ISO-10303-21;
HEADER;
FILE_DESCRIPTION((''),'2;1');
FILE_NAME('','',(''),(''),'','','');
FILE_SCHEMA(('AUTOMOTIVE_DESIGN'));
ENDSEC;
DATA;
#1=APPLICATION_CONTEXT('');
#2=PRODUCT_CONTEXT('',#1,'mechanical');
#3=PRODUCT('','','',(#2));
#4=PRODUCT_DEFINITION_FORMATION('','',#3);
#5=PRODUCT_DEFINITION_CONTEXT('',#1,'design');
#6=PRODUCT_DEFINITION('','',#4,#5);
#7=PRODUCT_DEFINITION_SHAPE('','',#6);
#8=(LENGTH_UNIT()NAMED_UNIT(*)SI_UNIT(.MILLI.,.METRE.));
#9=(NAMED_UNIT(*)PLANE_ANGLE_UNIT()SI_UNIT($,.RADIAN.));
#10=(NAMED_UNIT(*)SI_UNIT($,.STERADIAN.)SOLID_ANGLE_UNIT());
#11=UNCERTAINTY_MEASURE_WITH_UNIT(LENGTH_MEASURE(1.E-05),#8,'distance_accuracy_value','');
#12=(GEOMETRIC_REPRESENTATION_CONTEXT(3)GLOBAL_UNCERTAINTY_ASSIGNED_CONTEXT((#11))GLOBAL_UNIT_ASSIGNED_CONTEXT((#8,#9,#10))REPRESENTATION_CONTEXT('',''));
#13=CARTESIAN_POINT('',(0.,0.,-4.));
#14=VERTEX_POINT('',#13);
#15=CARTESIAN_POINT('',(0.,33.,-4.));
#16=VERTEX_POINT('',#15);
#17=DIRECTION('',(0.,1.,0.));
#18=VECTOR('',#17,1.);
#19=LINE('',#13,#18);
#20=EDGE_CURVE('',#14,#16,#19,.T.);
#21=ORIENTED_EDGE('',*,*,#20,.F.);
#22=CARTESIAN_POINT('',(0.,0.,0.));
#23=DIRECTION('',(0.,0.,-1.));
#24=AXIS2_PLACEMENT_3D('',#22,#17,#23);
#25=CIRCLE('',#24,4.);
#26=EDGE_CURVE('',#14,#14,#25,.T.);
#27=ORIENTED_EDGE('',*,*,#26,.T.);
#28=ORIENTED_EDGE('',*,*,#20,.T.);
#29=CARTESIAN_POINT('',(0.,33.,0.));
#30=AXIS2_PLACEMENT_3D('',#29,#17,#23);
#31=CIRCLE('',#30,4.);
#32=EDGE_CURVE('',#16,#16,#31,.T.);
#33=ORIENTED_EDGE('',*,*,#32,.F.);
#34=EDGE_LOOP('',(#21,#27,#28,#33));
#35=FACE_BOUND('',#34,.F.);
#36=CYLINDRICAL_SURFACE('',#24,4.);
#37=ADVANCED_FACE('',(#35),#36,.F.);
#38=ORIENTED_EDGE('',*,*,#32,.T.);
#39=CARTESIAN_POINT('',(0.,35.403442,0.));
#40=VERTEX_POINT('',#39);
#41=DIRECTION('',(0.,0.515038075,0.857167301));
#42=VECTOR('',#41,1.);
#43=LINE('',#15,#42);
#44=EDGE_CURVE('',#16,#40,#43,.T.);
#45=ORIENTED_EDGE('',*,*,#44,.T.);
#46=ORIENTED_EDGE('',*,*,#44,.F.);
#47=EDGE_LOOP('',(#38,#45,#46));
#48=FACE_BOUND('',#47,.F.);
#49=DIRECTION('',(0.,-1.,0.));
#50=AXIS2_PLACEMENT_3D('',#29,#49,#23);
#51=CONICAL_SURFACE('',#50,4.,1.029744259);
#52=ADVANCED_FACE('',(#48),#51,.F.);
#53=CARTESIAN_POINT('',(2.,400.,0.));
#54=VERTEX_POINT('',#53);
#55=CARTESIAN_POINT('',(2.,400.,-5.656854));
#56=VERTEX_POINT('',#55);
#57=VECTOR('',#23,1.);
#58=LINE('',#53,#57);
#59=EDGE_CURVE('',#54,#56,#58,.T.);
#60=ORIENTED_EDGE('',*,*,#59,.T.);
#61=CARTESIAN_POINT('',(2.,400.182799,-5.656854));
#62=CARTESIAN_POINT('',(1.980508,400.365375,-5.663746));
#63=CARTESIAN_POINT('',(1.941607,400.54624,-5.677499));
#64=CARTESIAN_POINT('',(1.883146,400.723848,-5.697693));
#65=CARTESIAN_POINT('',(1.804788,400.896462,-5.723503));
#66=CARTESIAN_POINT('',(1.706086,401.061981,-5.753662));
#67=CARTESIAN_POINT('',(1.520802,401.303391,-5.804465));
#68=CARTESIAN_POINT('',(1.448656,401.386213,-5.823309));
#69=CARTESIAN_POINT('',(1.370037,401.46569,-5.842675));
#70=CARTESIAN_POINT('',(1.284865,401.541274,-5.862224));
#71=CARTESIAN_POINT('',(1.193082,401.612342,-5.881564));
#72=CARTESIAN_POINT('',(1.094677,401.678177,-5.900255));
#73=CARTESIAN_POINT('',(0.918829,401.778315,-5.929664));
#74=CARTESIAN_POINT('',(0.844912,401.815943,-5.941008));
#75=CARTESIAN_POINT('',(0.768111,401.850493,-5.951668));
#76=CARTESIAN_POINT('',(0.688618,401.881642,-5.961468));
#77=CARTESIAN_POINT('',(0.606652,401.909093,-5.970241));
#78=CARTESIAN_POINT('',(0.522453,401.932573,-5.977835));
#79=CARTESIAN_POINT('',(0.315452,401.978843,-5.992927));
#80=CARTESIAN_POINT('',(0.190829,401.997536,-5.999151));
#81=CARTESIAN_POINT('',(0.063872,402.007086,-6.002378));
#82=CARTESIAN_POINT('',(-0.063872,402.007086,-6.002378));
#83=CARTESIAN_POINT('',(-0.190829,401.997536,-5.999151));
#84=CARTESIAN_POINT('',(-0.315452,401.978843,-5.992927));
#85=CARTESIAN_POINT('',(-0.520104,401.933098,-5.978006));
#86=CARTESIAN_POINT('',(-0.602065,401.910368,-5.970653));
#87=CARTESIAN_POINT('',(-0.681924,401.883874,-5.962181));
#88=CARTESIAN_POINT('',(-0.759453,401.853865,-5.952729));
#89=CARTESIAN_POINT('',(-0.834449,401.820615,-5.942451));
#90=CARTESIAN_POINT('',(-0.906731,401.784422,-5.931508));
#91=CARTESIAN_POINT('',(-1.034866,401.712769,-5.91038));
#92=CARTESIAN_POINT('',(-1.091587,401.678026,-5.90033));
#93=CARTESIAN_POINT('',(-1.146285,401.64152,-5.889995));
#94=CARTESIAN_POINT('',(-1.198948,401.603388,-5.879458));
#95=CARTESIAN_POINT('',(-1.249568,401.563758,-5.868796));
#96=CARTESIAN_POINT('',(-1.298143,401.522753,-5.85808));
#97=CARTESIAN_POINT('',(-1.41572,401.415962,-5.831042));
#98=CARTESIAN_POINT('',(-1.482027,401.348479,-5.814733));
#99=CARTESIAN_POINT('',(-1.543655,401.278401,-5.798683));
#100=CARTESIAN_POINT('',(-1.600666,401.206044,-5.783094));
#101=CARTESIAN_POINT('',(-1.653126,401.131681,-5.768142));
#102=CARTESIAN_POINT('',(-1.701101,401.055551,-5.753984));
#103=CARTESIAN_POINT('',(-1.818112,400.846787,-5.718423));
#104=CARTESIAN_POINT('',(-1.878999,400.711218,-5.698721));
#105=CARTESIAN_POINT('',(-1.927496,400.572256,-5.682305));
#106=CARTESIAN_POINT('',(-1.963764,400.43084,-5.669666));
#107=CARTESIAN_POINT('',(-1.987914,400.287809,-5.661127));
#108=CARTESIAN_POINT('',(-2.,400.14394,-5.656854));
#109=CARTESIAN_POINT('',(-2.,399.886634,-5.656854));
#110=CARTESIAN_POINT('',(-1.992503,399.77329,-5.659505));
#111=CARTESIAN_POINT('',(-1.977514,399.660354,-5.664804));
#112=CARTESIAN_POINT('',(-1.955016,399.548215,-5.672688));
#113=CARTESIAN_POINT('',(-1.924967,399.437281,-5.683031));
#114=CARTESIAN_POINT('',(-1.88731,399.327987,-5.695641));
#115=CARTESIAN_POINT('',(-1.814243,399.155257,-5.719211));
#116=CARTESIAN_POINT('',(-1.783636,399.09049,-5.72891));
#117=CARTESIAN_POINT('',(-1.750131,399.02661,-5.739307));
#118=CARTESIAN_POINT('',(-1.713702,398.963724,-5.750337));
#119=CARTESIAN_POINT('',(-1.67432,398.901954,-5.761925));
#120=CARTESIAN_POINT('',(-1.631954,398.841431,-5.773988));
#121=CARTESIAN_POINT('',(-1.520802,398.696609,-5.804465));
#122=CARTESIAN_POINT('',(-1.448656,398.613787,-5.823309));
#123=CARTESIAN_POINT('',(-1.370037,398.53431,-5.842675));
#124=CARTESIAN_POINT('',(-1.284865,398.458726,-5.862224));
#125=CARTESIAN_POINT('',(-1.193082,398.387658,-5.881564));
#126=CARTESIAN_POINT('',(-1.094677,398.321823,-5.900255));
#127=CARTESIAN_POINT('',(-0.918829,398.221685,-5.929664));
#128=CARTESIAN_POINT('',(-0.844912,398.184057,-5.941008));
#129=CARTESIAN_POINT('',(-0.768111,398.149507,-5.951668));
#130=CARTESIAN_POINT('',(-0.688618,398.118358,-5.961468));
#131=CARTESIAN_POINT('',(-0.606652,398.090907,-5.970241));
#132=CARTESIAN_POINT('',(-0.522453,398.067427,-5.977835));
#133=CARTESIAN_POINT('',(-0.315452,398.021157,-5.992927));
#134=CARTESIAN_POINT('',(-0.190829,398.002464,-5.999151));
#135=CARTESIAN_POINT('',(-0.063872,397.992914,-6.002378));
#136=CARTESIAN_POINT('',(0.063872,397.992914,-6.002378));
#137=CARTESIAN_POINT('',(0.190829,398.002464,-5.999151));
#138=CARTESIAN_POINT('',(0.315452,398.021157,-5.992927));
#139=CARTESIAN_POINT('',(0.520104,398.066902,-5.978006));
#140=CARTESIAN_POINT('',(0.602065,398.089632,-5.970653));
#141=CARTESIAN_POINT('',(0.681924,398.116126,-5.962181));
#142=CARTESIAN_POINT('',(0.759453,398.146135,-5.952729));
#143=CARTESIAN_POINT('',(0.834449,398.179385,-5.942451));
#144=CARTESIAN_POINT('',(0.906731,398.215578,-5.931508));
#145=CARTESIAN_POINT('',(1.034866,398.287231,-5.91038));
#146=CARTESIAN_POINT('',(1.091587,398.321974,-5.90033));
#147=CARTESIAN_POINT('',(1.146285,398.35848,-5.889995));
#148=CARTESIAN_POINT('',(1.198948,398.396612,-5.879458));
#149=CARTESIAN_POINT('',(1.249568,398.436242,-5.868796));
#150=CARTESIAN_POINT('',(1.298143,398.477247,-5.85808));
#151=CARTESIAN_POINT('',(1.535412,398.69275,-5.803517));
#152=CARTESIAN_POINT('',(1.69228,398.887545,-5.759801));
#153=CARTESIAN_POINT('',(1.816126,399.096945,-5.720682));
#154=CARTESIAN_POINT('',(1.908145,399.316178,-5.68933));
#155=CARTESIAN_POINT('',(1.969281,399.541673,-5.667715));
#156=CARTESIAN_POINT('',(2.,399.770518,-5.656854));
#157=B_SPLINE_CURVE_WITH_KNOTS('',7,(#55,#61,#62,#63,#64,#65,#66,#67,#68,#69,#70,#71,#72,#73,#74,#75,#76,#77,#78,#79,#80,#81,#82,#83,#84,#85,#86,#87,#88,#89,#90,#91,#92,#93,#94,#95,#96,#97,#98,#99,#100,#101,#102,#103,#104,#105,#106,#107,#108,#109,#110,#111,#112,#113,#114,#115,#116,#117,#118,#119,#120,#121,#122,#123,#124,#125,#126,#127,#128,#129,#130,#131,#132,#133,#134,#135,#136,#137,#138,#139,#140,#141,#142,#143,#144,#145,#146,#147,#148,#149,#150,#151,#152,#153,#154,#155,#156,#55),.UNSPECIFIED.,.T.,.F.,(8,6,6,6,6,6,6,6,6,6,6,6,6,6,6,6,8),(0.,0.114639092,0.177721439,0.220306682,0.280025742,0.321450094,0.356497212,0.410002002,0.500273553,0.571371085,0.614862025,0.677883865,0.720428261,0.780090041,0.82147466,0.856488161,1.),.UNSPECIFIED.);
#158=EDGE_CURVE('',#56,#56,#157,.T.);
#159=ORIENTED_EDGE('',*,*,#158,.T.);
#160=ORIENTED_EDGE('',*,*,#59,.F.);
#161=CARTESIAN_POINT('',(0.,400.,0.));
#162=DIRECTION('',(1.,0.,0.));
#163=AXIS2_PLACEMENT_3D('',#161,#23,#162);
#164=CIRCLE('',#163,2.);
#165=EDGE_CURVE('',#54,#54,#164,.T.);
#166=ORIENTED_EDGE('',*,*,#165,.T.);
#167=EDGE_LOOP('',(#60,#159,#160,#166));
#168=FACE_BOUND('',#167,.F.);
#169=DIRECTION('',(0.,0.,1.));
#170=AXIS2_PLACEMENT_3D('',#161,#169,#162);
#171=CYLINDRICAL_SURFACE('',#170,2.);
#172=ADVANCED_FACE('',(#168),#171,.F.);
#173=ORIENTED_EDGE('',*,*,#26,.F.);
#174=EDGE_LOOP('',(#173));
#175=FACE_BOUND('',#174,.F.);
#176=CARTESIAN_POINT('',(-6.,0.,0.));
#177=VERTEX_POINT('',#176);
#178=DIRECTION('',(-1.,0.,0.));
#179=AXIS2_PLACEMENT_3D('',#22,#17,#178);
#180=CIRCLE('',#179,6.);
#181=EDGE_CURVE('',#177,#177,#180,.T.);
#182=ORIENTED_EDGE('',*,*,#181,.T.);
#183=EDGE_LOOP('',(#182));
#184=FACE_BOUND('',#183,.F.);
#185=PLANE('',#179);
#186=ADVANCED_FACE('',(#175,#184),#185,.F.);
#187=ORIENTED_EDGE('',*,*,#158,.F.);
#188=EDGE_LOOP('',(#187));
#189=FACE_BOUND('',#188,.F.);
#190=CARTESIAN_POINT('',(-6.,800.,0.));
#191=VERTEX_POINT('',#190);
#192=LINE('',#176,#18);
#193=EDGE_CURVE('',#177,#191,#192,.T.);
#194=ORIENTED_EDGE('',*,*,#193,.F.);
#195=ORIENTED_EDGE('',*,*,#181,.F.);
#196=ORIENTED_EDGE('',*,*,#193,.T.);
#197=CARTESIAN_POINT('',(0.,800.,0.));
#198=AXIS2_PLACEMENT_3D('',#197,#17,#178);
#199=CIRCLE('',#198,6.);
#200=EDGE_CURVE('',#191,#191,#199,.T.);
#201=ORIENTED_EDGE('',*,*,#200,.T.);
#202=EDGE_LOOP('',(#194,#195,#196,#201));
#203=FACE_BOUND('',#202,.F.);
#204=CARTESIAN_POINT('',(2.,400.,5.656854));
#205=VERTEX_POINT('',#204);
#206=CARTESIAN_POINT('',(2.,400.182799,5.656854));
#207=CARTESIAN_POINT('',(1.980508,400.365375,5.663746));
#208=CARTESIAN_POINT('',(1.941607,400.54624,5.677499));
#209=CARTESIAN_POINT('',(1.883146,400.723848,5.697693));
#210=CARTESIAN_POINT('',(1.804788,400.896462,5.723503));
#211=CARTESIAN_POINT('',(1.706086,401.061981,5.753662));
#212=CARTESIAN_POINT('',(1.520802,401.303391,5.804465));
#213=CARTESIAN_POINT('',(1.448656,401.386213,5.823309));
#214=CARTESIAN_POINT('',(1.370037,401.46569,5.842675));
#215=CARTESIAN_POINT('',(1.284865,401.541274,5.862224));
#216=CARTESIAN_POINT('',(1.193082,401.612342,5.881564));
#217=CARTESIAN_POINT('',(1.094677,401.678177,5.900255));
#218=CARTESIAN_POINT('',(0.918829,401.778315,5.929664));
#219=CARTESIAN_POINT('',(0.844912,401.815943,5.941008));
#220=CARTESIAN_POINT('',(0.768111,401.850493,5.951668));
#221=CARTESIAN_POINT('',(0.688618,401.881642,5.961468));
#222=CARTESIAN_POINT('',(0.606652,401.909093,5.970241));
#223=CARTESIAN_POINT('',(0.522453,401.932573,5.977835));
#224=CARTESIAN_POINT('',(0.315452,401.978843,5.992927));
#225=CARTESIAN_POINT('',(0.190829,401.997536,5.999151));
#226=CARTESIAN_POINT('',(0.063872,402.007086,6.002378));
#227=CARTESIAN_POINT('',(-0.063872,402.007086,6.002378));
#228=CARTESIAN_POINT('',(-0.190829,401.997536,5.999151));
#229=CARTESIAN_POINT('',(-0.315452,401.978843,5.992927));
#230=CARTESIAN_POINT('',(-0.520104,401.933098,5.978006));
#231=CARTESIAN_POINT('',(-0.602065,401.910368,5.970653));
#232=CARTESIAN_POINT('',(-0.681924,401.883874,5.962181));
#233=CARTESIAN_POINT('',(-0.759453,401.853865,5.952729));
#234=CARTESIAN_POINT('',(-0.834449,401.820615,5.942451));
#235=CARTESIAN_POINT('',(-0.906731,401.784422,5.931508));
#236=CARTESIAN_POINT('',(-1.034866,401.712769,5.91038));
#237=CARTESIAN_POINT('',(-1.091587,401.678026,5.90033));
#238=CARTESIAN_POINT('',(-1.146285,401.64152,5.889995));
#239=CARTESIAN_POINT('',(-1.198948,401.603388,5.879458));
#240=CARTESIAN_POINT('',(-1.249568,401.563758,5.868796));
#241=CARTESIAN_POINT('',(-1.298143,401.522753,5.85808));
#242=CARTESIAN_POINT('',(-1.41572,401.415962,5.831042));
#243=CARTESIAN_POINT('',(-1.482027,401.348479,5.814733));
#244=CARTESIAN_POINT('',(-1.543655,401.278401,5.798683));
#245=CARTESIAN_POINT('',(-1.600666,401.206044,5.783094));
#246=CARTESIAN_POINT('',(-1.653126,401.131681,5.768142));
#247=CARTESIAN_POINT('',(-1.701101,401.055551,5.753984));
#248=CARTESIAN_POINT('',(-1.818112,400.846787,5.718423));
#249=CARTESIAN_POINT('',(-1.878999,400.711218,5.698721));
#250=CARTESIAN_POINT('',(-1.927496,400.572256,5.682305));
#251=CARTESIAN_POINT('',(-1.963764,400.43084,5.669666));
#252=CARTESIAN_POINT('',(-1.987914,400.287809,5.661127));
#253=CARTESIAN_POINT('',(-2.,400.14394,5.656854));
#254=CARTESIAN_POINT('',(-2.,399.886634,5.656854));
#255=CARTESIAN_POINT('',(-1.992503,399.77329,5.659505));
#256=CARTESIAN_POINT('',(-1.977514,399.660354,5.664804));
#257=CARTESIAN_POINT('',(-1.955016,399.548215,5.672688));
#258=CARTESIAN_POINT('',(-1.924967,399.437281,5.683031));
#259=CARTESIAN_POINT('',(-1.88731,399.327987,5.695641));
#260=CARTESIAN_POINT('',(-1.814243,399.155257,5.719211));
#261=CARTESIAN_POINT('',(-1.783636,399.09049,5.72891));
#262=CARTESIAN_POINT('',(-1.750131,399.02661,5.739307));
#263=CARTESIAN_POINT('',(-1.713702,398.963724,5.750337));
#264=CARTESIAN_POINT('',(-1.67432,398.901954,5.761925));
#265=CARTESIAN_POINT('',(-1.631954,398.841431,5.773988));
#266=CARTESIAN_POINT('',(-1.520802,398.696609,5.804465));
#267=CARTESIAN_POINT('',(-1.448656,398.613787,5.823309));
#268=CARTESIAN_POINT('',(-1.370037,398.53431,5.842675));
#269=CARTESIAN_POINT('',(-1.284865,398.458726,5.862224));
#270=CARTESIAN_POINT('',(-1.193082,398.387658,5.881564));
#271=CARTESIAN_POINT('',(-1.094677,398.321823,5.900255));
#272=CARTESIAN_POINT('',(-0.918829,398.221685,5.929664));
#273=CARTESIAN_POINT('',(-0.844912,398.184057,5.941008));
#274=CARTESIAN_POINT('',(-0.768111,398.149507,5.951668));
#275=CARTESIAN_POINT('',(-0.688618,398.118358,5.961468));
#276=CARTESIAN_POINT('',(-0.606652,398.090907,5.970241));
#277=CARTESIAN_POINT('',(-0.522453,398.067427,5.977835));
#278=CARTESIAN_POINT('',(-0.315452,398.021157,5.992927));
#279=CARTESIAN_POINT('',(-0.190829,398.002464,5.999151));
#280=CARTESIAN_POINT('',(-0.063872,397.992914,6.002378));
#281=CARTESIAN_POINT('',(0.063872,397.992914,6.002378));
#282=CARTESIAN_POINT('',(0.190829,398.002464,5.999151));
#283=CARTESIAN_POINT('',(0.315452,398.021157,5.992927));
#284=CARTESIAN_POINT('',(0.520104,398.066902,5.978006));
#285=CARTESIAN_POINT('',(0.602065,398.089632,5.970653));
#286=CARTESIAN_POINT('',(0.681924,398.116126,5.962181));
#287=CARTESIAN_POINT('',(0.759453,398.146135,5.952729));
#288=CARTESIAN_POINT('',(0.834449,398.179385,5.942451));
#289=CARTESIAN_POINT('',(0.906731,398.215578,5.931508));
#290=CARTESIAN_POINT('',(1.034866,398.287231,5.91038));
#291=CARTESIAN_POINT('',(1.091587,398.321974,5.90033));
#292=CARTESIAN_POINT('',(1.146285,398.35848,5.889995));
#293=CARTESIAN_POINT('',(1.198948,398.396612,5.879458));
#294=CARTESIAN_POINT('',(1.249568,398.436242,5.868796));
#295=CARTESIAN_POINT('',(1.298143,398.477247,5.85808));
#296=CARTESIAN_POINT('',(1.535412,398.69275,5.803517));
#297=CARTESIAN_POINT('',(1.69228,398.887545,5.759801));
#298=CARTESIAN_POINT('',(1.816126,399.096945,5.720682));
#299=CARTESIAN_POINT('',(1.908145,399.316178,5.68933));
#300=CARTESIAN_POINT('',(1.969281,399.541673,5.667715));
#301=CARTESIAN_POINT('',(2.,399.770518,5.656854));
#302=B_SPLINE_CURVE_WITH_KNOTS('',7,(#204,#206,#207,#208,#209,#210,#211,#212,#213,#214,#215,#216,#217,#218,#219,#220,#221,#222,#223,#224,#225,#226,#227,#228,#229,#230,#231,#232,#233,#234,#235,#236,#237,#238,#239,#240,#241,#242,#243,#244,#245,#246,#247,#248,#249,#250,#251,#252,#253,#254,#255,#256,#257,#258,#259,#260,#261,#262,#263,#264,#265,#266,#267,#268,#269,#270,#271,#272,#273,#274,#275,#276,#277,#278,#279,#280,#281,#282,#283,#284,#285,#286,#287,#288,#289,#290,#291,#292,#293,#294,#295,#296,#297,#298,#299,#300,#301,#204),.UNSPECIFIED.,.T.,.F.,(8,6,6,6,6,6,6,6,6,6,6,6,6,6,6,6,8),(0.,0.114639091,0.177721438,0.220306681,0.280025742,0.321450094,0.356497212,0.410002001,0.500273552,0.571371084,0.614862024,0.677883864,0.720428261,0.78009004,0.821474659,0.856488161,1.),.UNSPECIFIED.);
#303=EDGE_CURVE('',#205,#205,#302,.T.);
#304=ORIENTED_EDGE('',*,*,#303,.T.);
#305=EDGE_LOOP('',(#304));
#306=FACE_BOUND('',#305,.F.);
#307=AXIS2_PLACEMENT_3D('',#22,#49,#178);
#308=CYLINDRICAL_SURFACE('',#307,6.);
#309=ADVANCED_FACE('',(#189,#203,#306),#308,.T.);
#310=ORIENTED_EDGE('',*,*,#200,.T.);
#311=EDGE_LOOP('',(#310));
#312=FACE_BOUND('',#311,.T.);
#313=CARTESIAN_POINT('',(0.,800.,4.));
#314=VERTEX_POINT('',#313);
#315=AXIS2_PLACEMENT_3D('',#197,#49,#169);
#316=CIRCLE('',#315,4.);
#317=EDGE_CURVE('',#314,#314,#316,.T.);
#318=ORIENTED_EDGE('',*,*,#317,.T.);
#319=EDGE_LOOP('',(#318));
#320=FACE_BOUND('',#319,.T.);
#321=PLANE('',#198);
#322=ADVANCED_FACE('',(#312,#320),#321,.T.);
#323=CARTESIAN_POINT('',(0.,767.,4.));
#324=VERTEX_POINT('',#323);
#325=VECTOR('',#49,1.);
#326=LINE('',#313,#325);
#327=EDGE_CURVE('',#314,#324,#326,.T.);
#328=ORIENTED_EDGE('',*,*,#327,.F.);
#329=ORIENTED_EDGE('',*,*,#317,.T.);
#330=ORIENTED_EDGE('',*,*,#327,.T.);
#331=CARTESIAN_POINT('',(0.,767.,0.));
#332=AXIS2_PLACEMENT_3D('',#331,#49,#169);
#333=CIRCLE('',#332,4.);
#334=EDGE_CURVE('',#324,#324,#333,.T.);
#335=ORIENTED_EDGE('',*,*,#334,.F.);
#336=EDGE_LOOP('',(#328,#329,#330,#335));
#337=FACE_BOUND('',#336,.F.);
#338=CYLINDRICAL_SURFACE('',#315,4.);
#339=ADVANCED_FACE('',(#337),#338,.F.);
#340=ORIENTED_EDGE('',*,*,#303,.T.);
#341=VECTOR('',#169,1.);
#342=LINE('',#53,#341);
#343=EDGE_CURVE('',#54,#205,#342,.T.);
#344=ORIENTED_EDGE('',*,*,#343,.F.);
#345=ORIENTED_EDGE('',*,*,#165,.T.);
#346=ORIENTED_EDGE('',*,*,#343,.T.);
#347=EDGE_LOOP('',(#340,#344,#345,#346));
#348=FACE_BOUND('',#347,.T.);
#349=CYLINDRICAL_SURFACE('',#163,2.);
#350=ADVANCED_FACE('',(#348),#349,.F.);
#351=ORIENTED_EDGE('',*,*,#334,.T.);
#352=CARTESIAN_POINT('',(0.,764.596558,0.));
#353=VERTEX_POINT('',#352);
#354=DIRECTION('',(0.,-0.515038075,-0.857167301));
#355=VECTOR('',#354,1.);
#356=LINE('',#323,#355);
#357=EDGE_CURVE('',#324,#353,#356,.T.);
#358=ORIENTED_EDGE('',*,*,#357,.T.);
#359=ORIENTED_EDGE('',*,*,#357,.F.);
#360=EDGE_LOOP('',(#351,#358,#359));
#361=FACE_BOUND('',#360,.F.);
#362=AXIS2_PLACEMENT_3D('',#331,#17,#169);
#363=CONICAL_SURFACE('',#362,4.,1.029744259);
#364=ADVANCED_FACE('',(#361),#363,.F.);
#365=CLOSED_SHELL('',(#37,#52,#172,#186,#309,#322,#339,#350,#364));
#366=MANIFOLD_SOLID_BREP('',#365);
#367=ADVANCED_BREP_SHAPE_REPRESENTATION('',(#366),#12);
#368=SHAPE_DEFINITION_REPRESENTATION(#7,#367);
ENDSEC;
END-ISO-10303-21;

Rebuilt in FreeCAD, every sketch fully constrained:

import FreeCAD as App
import Part
import Sketcher
from FreeCAD import Vector
Q = App.Units.Quantity

doc = App.newDocument("Part")
body = doc.addObject("PartDesign::Body", "Body")

# Sketch on XZ plane
sketch1 = body.newObject("Sketcher::SketchObject", "Sketch")
sketch1.AttachmentSupport = (doc.getObject("XZ_Plane"), [""])
sketch1.MapMode = "FlatFace"
sketch1.addGeometry(Part.Circle(Vector(0, 0, 0), Vector(0, 0, 1), 6), False)
sketch1.addConstraint([
    Sketcher.Constraint("Coincident", 0, 3, -1, 1),
    Sketcher.Constraint("Diameter", 0, Q("12 mm")),
])
pad1 = body.newObject("PartDesign::Pad", "Pad")
pad1.Profile = sketch1
pad1.Length = 800
pad1.Reversed = True

# Sketch on XZ plane
sketch2 = body.newObject("Sketcher::SketchObject", "Sketch001")
sketch2.AttachmentSupport = (doc.getObject("XZ_Plane"), [""])
sketch2.MapMode = "FlatFace"
sketch2.AttachmentOffset = App.Placement(Vector(0, 0, -800), App.Rotation())
sketch2.addGeometry(Part.Circle(Vector(0, 0, 0), Vector(0, 0, 1), 4), False)
sketch2.addConstraint([
    Sketcher.Constraint("Coincident", 0, 3, -1, 1),
    Sketcher.Constraint("Diameter", 0, Q("8 mm")),
])
doc.recompute()
hole = body.newObject("PartDesign::Hole", "Hole")
hole.Profile = sketch2
hole.ThreadType = "None"
hole.Diameter = 8
hole.DepthType = "Dimension"
hole.Depth = 33
hole.DrillPoint = "Angled"
hole.DrillPointAngle = 118
hole.Reversed = True

# Sketch on XZ plane
sketch3 = body.newObject("Sketcher::SketchObject", "Sketch002")
sketch3.AttachmentSupport = (doc.getObject("XZ_Plane"), [""])
sketch3.MapMode = "FlatFace"
sketch3.addGeometry(Part.Circle(Vector(0, 0, 0), Vector(0, 0, 1), 4), False)
sketch3.addConstraint([
    Sketcher.Constraint("Coincident", 0, 3, -1, 1),
    Sketcher.Constraint("Diameter", 0, Q("8 mm")),
])
doc.recompute()
hole2 = body.newObject("PartDesign::Hole", "Hole001")
hole2.Profile = sketch3
hole2.ThreadType = "None"
hole2.Diameter = 8
hole2.DepthType = "Dimension"
hole2.Depth = 33
hole2.DrillPoint = "Angled"
hole2.DrillPointAngle = 118

# Sketch on XY plane
sketch4 = body.newObject("Sketcher::SketchObject", "Sketch003")
sketch4.AttachmentSupport = (doc.getObject("XY_Plane"), [""])
sketch4.MapMode = "FlatFace"
sketch4.addGeometry(Part.Circle(Vector(0, 400, 0), Vector(0, 0, 1), 2), False)
sketch4.addConstraint([
    Sketcher.Constraint("PointOnObject", 0, 3, -2),
    Sketcher.Constraint("Diameter", 0, Q("4 mm")),
    Sketcher.Constraint("DistanceY", -1, 1, 0, 3, Q("400 mm")),
])
pocket1 = body.newObject("PartDesign::Pocket", "Pocket")
pocket1.Profile = sketch4
pocket1.Type = "ThroughAll"
pocket1.Midplane = True

doc.recompute()
